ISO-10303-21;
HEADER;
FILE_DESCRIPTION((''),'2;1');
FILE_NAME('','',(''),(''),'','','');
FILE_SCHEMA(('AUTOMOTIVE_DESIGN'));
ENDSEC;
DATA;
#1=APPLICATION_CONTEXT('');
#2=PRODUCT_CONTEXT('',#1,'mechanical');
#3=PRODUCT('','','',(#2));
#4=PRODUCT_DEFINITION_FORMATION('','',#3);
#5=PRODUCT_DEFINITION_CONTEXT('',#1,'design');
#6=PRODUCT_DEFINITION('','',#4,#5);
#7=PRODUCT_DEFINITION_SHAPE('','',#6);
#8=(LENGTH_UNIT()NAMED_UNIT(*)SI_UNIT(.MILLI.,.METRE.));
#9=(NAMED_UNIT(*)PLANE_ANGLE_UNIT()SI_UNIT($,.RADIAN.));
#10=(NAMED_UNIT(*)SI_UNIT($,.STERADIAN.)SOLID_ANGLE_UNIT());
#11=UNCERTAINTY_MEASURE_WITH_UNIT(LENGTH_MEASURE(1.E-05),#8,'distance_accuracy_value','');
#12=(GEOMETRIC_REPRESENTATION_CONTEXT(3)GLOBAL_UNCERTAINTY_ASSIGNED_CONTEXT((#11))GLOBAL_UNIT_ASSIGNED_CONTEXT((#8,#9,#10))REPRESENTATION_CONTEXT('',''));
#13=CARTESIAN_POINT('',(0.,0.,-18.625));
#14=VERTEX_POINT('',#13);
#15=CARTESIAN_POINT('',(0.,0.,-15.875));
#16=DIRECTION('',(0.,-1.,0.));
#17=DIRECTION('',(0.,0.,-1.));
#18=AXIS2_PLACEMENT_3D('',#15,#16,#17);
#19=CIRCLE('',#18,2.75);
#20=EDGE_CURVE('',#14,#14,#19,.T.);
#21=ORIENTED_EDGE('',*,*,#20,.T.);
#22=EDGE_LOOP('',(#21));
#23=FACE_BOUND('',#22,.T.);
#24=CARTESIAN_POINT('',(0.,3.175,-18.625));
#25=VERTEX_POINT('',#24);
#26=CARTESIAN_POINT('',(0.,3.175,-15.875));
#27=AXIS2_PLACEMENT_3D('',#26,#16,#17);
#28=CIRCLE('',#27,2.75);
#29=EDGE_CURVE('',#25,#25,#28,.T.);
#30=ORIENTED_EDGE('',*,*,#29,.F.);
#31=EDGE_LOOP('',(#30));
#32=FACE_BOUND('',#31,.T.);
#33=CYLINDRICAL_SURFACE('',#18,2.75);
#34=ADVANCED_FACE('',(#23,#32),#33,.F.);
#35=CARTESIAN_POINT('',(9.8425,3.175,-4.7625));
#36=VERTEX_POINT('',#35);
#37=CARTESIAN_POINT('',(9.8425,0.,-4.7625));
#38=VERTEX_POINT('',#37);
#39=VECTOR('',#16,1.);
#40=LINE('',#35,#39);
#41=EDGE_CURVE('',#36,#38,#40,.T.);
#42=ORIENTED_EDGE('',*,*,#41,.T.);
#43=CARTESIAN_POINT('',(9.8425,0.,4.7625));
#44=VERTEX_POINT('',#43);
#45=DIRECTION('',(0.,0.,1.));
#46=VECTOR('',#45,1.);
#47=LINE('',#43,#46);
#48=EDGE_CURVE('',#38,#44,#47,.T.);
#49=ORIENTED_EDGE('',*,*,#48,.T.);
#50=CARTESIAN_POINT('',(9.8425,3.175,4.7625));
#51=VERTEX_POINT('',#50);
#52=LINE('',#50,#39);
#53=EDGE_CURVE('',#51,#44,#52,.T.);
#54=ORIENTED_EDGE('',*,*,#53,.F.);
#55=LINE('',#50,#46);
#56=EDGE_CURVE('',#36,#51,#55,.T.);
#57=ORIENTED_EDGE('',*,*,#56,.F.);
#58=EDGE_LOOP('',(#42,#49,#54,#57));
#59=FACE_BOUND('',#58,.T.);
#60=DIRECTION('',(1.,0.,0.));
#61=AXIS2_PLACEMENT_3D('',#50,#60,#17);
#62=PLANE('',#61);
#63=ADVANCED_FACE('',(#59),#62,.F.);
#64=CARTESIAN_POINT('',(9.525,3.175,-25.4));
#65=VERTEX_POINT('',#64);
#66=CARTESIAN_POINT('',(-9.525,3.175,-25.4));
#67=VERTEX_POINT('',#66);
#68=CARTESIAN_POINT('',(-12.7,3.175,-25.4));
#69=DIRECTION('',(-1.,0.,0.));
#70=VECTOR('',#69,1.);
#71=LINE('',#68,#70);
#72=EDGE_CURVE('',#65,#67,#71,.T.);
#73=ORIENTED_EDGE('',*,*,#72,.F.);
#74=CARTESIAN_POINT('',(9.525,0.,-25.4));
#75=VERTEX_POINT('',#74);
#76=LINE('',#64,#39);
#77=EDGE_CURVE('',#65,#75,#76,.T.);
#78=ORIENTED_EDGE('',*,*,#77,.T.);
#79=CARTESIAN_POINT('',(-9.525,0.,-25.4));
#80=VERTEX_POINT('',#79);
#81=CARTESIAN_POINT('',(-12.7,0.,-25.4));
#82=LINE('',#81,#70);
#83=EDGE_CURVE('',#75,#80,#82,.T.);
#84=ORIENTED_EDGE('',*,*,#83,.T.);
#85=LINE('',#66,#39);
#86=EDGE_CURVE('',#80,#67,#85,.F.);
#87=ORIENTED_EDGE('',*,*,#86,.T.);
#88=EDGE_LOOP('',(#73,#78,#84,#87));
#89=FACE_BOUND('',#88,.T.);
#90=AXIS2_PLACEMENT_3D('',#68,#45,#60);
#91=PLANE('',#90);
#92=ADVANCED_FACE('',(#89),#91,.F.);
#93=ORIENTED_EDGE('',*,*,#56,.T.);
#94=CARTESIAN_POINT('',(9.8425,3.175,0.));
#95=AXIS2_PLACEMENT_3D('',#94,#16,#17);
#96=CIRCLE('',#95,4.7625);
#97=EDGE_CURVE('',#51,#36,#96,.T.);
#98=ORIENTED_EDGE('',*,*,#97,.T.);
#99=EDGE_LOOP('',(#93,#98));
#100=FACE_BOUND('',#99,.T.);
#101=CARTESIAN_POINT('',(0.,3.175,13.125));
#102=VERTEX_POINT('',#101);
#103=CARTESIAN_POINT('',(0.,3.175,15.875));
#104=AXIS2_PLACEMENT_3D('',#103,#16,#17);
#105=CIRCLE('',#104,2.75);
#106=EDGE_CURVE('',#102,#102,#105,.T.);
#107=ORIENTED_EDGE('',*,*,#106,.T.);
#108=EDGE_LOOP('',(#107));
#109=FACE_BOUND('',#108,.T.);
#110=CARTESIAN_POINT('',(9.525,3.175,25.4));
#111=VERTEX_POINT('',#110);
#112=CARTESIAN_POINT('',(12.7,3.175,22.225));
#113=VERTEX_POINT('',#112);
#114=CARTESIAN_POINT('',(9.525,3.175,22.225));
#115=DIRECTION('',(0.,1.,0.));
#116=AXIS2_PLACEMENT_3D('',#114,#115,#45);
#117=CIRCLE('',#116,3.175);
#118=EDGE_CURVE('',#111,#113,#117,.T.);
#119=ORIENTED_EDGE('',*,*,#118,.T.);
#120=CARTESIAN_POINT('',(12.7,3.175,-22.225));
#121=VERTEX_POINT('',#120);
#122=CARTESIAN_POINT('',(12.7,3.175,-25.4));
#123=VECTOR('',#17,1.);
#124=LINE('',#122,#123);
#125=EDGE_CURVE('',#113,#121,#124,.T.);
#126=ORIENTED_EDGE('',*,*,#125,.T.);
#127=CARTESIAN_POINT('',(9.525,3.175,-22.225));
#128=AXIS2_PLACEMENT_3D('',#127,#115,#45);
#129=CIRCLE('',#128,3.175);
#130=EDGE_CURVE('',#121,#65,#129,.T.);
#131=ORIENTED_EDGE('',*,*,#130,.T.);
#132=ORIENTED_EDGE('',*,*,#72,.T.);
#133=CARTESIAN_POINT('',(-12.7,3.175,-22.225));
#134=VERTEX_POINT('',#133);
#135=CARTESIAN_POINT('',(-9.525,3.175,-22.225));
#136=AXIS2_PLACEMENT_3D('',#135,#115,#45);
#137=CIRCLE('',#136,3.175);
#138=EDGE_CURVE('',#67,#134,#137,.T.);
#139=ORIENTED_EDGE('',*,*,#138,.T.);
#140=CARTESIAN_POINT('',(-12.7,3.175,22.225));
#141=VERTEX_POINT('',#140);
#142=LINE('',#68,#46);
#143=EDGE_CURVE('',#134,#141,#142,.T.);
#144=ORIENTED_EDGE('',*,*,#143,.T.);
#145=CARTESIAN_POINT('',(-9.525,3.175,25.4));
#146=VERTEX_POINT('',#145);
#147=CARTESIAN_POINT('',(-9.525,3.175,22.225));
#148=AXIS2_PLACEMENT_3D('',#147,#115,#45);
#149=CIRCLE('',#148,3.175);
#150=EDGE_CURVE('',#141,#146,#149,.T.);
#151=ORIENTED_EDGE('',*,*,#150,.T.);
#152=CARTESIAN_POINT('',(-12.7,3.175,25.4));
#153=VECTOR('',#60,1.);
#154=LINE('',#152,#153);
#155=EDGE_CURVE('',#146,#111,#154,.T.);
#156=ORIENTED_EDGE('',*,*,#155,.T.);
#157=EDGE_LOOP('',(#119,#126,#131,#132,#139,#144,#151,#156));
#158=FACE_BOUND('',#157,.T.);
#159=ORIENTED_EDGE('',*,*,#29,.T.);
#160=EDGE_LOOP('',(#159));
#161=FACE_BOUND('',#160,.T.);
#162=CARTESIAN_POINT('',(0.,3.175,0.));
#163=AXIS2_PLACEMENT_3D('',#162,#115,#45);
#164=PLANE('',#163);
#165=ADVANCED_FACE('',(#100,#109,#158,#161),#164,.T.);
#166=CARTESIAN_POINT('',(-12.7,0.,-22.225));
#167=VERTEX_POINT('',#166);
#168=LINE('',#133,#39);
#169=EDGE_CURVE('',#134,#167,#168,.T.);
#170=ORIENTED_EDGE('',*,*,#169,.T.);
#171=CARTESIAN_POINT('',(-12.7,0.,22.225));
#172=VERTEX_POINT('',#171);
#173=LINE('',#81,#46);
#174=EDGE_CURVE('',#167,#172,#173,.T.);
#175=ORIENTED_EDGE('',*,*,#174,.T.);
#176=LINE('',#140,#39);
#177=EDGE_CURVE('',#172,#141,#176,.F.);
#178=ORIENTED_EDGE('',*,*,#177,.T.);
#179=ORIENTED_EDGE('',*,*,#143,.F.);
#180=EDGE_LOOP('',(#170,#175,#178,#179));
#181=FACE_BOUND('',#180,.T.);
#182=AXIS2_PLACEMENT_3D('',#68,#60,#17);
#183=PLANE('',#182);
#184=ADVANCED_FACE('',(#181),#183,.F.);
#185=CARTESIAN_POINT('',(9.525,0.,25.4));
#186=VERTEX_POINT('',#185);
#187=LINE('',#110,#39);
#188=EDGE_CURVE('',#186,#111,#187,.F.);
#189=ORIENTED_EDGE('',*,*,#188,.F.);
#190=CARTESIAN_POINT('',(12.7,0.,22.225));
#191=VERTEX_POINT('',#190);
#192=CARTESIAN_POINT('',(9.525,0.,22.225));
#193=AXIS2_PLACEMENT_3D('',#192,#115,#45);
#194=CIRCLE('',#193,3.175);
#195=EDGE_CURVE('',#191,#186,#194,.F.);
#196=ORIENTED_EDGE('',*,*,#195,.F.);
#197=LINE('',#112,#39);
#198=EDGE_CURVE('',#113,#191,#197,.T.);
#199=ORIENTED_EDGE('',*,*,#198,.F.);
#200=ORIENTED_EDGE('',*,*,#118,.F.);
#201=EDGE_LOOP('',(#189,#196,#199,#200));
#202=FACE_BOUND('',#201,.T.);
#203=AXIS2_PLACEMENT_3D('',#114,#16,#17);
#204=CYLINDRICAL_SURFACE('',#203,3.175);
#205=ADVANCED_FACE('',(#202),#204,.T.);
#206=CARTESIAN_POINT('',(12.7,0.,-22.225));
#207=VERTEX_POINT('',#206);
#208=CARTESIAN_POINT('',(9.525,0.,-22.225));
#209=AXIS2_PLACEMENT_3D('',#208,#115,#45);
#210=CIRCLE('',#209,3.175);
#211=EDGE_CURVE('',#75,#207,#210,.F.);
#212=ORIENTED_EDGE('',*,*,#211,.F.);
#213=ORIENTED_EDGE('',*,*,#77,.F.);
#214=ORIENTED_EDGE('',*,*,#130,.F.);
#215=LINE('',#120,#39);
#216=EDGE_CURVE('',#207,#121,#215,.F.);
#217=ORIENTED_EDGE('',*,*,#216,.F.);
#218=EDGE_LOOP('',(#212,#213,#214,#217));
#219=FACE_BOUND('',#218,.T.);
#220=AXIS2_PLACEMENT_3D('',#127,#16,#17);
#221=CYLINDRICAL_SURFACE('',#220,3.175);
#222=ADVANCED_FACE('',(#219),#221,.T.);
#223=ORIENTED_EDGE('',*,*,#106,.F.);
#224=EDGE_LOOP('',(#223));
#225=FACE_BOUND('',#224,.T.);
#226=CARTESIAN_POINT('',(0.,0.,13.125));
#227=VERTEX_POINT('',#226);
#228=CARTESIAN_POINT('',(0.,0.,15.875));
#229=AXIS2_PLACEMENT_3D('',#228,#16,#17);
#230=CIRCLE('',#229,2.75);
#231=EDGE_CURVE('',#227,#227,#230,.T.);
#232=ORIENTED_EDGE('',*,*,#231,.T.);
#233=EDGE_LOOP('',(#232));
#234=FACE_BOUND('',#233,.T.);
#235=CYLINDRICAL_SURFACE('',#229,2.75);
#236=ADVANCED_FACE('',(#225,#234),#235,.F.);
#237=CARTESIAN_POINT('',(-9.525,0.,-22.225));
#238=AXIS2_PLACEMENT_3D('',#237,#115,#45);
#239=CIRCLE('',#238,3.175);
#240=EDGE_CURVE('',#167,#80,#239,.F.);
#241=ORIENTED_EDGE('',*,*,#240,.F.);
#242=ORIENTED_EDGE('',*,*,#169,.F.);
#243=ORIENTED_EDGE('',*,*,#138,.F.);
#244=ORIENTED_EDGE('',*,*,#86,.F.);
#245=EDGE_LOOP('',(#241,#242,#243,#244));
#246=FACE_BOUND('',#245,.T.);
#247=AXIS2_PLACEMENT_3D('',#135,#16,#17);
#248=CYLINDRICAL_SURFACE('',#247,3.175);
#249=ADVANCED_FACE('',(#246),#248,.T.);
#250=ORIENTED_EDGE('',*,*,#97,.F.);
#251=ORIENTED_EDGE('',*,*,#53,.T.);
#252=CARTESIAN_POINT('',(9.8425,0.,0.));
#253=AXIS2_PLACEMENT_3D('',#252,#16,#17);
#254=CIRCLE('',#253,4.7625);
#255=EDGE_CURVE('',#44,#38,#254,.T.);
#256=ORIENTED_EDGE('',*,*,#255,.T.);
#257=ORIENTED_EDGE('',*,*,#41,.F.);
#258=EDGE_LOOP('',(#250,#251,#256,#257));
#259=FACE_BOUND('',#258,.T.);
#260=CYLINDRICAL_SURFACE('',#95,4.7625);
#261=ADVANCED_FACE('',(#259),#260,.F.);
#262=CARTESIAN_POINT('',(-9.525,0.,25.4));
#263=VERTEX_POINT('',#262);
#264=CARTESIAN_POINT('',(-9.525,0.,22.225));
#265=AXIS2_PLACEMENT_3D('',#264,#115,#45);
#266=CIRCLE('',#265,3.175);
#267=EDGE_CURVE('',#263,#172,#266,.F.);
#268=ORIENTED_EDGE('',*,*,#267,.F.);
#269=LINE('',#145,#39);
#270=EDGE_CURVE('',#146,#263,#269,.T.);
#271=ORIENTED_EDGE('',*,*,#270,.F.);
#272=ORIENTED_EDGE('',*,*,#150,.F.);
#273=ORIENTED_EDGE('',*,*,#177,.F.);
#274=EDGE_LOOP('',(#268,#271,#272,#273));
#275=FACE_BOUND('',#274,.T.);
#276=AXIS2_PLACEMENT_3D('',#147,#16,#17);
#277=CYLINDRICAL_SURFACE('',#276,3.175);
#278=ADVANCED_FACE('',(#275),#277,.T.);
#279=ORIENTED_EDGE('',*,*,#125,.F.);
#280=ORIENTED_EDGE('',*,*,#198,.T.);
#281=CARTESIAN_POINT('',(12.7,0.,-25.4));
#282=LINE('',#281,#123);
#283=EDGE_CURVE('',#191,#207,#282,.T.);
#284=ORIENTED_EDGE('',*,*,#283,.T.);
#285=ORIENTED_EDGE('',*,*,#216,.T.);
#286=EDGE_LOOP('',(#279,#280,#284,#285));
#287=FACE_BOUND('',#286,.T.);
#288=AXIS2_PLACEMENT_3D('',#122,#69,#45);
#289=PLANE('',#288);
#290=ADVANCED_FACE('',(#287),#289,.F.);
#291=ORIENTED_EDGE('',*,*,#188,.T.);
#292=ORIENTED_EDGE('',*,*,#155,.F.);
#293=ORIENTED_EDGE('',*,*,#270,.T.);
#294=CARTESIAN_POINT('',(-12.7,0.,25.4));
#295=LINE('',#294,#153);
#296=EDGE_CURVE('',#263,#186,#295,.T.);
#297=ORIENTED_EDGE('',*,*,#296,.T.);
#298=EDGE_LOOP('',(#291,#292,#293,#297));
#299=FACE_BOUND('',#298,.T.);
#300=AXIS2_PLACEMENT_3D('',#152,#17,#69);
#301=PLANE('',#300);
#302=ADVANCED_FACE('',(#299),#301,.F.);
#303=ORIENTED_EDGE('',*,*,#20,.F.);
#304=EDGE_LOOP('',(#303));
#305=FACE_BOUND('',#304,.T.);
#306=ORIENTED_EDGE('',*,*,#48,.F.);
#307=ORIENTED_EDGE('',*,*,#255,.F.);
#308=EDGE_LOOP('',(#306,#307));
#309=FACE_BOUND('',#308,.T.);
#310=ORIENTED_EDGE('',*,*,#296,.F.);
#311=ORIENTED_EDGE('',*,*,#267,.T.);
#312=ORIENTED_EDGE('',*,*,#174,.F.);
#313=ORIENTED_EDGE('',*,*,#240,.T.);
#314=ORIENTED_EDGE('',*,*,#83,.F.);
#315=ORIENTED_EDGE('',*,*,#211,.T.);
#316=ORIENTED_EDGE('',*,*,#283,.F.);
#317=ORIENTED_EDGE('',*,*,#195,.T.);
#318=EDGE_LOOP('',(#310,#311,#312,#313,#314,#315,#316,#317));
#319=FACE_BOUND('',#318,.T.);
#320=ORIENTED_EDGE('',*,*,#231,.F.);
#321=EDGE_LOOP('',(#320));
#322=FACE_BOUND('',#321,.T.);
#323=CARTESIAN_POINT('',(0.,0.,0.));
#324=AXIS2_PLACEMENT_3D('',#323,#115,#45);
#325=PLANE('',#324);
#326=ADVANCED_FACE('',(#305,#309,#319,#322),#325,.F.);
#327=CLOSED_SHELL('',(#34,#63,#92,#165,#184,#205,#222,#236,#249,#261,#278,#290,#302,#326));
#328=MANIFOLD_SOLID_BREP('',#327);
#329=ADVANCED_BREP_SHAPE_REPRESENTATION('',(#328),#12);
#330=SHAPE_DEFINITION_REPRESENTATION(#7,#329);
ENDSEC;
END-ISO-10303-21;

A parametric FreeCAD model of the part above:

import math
import FreeCAD as App
import Part
import Sketcher
from FreeCAD import Vector
Q = App.Units.Quantity


def edges_at(feature, points):
    """Names of the edges that pass closest to the given points."""
    edges = feature.Shape.Edges
    near = lambda p: min(range(len(edges)), key=lambda i: edges[i].distToShape(Part.Vertex(*p))[0])
    return sorted({f"Edge{near(p) + 1}" for p in points})


def add_polygon(sketch, points):
    """Adds a closed chain of lines whose ends are joined by coincident constraints."""
    first, n = sketch.GeometryCount, len(points)
    for a, b in zip(points, points[1:] + points[:1]):
        sketch.addGeometry(Part.LineSegment(App.Vector(*a, 0), App.Vector(*b, 0)), False)
    for i in range(n):
        sketch.addConstraint(Sketcher.Constraint("Coincident", first + i, 2, first + (i + 1) % n, 1))

doc = App.newDocument("Part")
params = doc.addObject("Spreadsheet::Sheet", "Params")
for row, (alias, value) in enumerate([
    ("sketch1_width", "1 in"),
    ("sketch1_height", "2 in"),
    ("pad1_length", "0.125 in"),
    ("sketch2_radius", "0.1875 in"),
    ("hole_diameter", "5.5 mm"),
    ("fillet_radius", "0.125 in"),
], start=1):
    params.set(f"A{row}", alias)
    params.set(f"B{row}", "=" + value)
    params.setAlias(f"B{row}", alias)

body = doc.addObject("PartDesign::Body", "Body")

# Sketch on XZ plane
sketch1 = body.newObject("Sketcher::SketchObject", "Sketch")
sketch1.AttachmentSupport = (doc.getObject("XZ_Plane"), [""])
sketch1.MapMode = "FlatFace"
add_polygon(sketch1, [(-12.7, -25.4), (-12.7, 25.4), (12.7, 25.4), (12.7, -25.4)])  # lines 0-3
sketch1.addConstraint([
    Sketcher.Constraint("Vertical", 0),
    Sketcher.Constraint("Horizontal", 1),
    Sketcher.Constraint("Vertical", 2),
    Sketcher.Constraint("Horizontal", 3),
    Sketcher.Constraint("Symmetric", 0, 2, 2, 2, -1, 1),
    Sketcher.Constraint("DistanceX", 1, 1, 1, 2, Q("1 in")),
    Sketcher.Constraint("DistanceY", 0, 1, 0, 2, Q("2 in")),
])
sketch1.setExpression("Constraints[9]", "Params.sketch1_width")
sketch1.setExpression("Constraints[10]", "Params.sketch1_height")
pad1 = body.newObject("PartDesign::Pad", "Pad")
pad1.Profile = sketch1
pad1.setExpression("Length", "Params.pad1_length")
pad1.Reversed = True

# Sketch on XZ plane
sketch2 = body.newObject("Sketcher::SketchObject", "Sketch001")
sketch2.AttachmentSupport = (doc.getObject("XZ_Plane"), [""])
sketch2.MapMode = "FlatFace"
sketch2.addGeometry([
    Part.LineSegment(Vector(9.8425, -4.7625, 0), Vector(9.8425, 4.7625, 0)),
    Part.ArcOfCircle(Part.Circle(Vector(9.8425, 0, 0), Vector(0, 0, 1), 4.7625), math.radians(90), math.radians(270)),
], False)
sketch2.addConstraint([
    Sketcher.Constraint("Coincident", 0, 1, 1, 2),
    Sketcher.Constraint("Coincident", 1, 1, 0, 2),
    Sketcher.Constraint("Vertical", 0),
    Sketcher.Constraint("PointOnObject", 1, 3, -1),
    Sketcher.Constraint("Vertical", 1, 3, 0, 1),
    Sketcher.Constraint("Radius", 1, Q("0.1875 in")),
    Sketcher.Constraint("DistanceX", -1, 1, 1, 3, Q("0.3875 in")),
])
sketch2.setExpression("Constraints[5]", "Params.sketch2_radius")
pocket1 = body.newObject("PartDesign::Pocket", "Pocket")
pocket1.Profile = sketch2
pocket1.Type = "ThroughAll"

# Sketch on XZ plane
sketch3 = body.newObject("Sketcher::SketchObject", "Sketch002")
sketch3.AttachmentSupport = (doc.getObject("XZ_Plane"), [""])
sketch3.MapMode = "FlatFace"
sketch3.addGeometry([
    Part.Circle(Vector(0, -15.875, 0), Vector(0, 0, 1), 2.75),
    Part.Circle(Vector(0, 15.875, 0), Vector(0, 0, 1), 2.75),
], False)
sketch3.addConstraint([
    Sketcher.Constraint("Equal", 0, 1),
    Sketcher.Constraint("Symmetric", 0, 3, 1, 3, -1, 1),
    Sketcher.Constraint("PointOnObject", 0, 3, -2),
    Sketcher.Constraint("Diameter", 0, Q("5.5 mm")),
    Sketcher.Constraint("DistanceY", 0, 3, 1, 3, Q("1.25 in")),
])
doc.recompute()
hole = body.newObject("PartDesign::Hole", "Hole")
hole.Profile = sketch3
hole.ThreadType = "None"
hole.setExpression("Diameter", "Params.hole_diameter")
hole.DepthType = "ThroughAll"
doc.recompute()

fillet = body.newObject("PartDesign::Fillet", "Fillet")
fillet.Base = (hole, edges_at(hole, [
    (12.7, 1.587, 25.4),
    (-12.7, 1.587, 25.4),
    (-12.7, 1.587, -25.4),
    (12.7, 1.587, -25.4),
]))
fillet.setExpression("Radius", "Params.fillet_radius")

doc.recompute()
